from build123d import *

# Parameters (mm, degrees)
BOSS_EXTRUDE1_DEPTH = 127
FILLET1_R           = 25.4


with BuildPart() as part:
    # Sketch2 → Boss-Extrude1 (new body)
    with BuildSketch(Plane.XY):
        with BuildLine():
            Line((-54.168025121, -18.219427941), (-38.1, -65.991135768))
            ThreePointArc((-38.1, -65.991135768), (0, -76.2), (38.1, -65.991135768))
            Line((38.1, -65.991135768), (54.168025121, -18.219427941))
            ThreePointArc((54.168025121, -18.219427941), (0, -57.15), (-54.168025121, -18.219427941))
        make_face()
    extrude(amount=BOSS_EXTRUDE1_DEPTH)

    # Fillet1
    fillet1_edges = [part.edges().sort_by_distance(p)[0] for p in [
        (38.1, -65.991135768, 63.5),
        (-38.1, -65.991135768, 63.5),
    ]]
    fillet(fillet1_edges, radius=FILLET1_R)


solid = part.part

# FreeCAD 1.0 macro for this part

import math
import FreeCAD as App
import Part
import Sketcher
from FreeCAD import Vector
Q = App.Units.Quantity


def edges_at(feature, points):
    """Names of the edges that pass closest to the given points."""
    edges = feature.Shape.Edges
    near = lambda p: min(range(len(edges)), key=lambda i: edges[i].distToShape(Part.Vertex(*p))[0])
    return sorted({f"Edge{near(p) + 1}" for p in points})

doc = App.newDocument("Part")
params = doc.addObject("Spreadsheet::Sheet", "Params")
for row, (alias, value) in enumerate([
    ("sketch1_radius", "3 in"),
    ("sketch1_radius2", "2.25 in"),
    ("pad1_length", "5 in"),
    ("fillet_radius", "1 in"),
], start=1):
    params.set(f"A{row}", alias)
    params.set(f"B{row}", "=" + value)
    params.setAlias(f"B{row}", alias)

body = doc.addObject("PartDesign::Body", "Body")

# Sketch on XY plane
sketch1 = body.newObject("Sketcher::SketchObject", "Sketch")
sketch1.AttachmentSupport = (doc.getObject("XY_Plane"), [""])
sketch1.MapMode = "FlatFace"
sketch1.addGeometry([
    Part.LineSegment(Vector(-54, -18, 0), Vector(-38, -66, 0)),
    Part.ArcOfCircle(Part.Circle(Vector(0, 0, 0), Vector(0, 0, 1), 76), math.radians(-120), math.radians(-60)),
    Part.LineSegment(Vector(38, -66, 0), Vector(54, -18, 0)),
    Part.ArcOfCircle(Part.Circle(Vector(0, 0, 0), Vector(0, 0, 1), 57), math.radians(-161), math.radians(-19)),
], False)
sketch1.addConstraint([
    Sketcher.Constraint("Coincident", 0, 2, 1, 1),
    Sketcher.Constraint("Coincident", 1, 2, 2, 1),
    Sketcher.Constraint("Tangent", 2, 2, 3, 2),
    Sketcher.Constraint("Tangent", 3, 1, 0, 1),
    Sketcher.Constraint("Coincident", 1, 3, -1, 1),
    Sketcher.Constraint("Coincident", 3, 3, -1, 1),
    Sketcher.Constraint("Horizontal", 0, 2, 1, 2),
    Sketcher.Constraint("Radius", 1, Q("3 in")),
    Sketcher.Constraint("Radius", 3, Q("2.25 in")),
    Sketcher.Constraint("DistanceX", 0, 2, 1, 2, Q("3 in")),
])
sketch1.setExpression("Constraints[7]", "Params.sketch1_radius")
sketch1.setExpression("Constraints[8]", "Params.sketch1_radius2")
pad1 = body.newObject("PartDesign::Pad", "Pad")
pad1.Profile = sketch1
pad1.setExpression("Length", "Params.pad1_length")
doc.recompute()

fillet = body.newObject("PartDesign::Fillet", "Fillet")
fillet.Base = (pad1, edges_at(pad1, [(38.1, -65.991, 63.5), (-38.1, -65.991, 63.5)]))
fillet.setExpression("Radius", "Params.fillet_radius")

doc.recompute()
